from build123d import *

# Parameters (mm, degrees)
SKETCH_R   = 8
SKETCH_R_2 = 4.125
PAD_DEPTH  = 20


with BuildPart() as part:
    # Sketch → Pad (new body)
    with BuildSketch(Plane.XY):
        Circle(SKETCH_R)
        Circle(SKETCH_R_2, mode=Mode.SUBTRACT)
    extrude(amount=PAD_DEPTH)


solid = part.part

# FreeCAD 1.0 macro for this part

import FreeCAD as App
import Part
import Sketcher

V = App.Vector
Q = App.Units.Quantity

doc = App.newDocument("Part")
body = doc.addObject("PartDesign::Body", "Body")

# Sketch on XY plane
sketch1 = body.newObject("Sketcher::SketchObject", "Sketch")
sketch1.AttachmentSupport = (doc.getObject("XY_Plane"), [""])
sketch1.MapMode = "FlatFace"
sketch1.addGeometry(Part.Circle(V(0, 0, 0), V(0, 0, 1), 8), False)
sketch1.addGeometry(Part.Circle(V(0, 0, 0), V(0, 0, 1), 4.1), False)
sketch1.addConstraint(Sketcher.Constraint("Coincident", 0, 3, -1, 1))
sketch1.addConstraint(Sketcher.Constraint("Coincident", 1, 3, -1, 1))
sketch1.addConstraint(Sketcher.Constraint("Diameter", 0, Q("16 mm")))
sketch1.addConstraint(Sketcher.Constraint("Diameter", 1, Q("8.25 mm")))
pad1 = body.newObject("PartDesign::Pad", "Pad")
pad1.Profile = sketch1
pad1.Length = 20

doc.recompute()
